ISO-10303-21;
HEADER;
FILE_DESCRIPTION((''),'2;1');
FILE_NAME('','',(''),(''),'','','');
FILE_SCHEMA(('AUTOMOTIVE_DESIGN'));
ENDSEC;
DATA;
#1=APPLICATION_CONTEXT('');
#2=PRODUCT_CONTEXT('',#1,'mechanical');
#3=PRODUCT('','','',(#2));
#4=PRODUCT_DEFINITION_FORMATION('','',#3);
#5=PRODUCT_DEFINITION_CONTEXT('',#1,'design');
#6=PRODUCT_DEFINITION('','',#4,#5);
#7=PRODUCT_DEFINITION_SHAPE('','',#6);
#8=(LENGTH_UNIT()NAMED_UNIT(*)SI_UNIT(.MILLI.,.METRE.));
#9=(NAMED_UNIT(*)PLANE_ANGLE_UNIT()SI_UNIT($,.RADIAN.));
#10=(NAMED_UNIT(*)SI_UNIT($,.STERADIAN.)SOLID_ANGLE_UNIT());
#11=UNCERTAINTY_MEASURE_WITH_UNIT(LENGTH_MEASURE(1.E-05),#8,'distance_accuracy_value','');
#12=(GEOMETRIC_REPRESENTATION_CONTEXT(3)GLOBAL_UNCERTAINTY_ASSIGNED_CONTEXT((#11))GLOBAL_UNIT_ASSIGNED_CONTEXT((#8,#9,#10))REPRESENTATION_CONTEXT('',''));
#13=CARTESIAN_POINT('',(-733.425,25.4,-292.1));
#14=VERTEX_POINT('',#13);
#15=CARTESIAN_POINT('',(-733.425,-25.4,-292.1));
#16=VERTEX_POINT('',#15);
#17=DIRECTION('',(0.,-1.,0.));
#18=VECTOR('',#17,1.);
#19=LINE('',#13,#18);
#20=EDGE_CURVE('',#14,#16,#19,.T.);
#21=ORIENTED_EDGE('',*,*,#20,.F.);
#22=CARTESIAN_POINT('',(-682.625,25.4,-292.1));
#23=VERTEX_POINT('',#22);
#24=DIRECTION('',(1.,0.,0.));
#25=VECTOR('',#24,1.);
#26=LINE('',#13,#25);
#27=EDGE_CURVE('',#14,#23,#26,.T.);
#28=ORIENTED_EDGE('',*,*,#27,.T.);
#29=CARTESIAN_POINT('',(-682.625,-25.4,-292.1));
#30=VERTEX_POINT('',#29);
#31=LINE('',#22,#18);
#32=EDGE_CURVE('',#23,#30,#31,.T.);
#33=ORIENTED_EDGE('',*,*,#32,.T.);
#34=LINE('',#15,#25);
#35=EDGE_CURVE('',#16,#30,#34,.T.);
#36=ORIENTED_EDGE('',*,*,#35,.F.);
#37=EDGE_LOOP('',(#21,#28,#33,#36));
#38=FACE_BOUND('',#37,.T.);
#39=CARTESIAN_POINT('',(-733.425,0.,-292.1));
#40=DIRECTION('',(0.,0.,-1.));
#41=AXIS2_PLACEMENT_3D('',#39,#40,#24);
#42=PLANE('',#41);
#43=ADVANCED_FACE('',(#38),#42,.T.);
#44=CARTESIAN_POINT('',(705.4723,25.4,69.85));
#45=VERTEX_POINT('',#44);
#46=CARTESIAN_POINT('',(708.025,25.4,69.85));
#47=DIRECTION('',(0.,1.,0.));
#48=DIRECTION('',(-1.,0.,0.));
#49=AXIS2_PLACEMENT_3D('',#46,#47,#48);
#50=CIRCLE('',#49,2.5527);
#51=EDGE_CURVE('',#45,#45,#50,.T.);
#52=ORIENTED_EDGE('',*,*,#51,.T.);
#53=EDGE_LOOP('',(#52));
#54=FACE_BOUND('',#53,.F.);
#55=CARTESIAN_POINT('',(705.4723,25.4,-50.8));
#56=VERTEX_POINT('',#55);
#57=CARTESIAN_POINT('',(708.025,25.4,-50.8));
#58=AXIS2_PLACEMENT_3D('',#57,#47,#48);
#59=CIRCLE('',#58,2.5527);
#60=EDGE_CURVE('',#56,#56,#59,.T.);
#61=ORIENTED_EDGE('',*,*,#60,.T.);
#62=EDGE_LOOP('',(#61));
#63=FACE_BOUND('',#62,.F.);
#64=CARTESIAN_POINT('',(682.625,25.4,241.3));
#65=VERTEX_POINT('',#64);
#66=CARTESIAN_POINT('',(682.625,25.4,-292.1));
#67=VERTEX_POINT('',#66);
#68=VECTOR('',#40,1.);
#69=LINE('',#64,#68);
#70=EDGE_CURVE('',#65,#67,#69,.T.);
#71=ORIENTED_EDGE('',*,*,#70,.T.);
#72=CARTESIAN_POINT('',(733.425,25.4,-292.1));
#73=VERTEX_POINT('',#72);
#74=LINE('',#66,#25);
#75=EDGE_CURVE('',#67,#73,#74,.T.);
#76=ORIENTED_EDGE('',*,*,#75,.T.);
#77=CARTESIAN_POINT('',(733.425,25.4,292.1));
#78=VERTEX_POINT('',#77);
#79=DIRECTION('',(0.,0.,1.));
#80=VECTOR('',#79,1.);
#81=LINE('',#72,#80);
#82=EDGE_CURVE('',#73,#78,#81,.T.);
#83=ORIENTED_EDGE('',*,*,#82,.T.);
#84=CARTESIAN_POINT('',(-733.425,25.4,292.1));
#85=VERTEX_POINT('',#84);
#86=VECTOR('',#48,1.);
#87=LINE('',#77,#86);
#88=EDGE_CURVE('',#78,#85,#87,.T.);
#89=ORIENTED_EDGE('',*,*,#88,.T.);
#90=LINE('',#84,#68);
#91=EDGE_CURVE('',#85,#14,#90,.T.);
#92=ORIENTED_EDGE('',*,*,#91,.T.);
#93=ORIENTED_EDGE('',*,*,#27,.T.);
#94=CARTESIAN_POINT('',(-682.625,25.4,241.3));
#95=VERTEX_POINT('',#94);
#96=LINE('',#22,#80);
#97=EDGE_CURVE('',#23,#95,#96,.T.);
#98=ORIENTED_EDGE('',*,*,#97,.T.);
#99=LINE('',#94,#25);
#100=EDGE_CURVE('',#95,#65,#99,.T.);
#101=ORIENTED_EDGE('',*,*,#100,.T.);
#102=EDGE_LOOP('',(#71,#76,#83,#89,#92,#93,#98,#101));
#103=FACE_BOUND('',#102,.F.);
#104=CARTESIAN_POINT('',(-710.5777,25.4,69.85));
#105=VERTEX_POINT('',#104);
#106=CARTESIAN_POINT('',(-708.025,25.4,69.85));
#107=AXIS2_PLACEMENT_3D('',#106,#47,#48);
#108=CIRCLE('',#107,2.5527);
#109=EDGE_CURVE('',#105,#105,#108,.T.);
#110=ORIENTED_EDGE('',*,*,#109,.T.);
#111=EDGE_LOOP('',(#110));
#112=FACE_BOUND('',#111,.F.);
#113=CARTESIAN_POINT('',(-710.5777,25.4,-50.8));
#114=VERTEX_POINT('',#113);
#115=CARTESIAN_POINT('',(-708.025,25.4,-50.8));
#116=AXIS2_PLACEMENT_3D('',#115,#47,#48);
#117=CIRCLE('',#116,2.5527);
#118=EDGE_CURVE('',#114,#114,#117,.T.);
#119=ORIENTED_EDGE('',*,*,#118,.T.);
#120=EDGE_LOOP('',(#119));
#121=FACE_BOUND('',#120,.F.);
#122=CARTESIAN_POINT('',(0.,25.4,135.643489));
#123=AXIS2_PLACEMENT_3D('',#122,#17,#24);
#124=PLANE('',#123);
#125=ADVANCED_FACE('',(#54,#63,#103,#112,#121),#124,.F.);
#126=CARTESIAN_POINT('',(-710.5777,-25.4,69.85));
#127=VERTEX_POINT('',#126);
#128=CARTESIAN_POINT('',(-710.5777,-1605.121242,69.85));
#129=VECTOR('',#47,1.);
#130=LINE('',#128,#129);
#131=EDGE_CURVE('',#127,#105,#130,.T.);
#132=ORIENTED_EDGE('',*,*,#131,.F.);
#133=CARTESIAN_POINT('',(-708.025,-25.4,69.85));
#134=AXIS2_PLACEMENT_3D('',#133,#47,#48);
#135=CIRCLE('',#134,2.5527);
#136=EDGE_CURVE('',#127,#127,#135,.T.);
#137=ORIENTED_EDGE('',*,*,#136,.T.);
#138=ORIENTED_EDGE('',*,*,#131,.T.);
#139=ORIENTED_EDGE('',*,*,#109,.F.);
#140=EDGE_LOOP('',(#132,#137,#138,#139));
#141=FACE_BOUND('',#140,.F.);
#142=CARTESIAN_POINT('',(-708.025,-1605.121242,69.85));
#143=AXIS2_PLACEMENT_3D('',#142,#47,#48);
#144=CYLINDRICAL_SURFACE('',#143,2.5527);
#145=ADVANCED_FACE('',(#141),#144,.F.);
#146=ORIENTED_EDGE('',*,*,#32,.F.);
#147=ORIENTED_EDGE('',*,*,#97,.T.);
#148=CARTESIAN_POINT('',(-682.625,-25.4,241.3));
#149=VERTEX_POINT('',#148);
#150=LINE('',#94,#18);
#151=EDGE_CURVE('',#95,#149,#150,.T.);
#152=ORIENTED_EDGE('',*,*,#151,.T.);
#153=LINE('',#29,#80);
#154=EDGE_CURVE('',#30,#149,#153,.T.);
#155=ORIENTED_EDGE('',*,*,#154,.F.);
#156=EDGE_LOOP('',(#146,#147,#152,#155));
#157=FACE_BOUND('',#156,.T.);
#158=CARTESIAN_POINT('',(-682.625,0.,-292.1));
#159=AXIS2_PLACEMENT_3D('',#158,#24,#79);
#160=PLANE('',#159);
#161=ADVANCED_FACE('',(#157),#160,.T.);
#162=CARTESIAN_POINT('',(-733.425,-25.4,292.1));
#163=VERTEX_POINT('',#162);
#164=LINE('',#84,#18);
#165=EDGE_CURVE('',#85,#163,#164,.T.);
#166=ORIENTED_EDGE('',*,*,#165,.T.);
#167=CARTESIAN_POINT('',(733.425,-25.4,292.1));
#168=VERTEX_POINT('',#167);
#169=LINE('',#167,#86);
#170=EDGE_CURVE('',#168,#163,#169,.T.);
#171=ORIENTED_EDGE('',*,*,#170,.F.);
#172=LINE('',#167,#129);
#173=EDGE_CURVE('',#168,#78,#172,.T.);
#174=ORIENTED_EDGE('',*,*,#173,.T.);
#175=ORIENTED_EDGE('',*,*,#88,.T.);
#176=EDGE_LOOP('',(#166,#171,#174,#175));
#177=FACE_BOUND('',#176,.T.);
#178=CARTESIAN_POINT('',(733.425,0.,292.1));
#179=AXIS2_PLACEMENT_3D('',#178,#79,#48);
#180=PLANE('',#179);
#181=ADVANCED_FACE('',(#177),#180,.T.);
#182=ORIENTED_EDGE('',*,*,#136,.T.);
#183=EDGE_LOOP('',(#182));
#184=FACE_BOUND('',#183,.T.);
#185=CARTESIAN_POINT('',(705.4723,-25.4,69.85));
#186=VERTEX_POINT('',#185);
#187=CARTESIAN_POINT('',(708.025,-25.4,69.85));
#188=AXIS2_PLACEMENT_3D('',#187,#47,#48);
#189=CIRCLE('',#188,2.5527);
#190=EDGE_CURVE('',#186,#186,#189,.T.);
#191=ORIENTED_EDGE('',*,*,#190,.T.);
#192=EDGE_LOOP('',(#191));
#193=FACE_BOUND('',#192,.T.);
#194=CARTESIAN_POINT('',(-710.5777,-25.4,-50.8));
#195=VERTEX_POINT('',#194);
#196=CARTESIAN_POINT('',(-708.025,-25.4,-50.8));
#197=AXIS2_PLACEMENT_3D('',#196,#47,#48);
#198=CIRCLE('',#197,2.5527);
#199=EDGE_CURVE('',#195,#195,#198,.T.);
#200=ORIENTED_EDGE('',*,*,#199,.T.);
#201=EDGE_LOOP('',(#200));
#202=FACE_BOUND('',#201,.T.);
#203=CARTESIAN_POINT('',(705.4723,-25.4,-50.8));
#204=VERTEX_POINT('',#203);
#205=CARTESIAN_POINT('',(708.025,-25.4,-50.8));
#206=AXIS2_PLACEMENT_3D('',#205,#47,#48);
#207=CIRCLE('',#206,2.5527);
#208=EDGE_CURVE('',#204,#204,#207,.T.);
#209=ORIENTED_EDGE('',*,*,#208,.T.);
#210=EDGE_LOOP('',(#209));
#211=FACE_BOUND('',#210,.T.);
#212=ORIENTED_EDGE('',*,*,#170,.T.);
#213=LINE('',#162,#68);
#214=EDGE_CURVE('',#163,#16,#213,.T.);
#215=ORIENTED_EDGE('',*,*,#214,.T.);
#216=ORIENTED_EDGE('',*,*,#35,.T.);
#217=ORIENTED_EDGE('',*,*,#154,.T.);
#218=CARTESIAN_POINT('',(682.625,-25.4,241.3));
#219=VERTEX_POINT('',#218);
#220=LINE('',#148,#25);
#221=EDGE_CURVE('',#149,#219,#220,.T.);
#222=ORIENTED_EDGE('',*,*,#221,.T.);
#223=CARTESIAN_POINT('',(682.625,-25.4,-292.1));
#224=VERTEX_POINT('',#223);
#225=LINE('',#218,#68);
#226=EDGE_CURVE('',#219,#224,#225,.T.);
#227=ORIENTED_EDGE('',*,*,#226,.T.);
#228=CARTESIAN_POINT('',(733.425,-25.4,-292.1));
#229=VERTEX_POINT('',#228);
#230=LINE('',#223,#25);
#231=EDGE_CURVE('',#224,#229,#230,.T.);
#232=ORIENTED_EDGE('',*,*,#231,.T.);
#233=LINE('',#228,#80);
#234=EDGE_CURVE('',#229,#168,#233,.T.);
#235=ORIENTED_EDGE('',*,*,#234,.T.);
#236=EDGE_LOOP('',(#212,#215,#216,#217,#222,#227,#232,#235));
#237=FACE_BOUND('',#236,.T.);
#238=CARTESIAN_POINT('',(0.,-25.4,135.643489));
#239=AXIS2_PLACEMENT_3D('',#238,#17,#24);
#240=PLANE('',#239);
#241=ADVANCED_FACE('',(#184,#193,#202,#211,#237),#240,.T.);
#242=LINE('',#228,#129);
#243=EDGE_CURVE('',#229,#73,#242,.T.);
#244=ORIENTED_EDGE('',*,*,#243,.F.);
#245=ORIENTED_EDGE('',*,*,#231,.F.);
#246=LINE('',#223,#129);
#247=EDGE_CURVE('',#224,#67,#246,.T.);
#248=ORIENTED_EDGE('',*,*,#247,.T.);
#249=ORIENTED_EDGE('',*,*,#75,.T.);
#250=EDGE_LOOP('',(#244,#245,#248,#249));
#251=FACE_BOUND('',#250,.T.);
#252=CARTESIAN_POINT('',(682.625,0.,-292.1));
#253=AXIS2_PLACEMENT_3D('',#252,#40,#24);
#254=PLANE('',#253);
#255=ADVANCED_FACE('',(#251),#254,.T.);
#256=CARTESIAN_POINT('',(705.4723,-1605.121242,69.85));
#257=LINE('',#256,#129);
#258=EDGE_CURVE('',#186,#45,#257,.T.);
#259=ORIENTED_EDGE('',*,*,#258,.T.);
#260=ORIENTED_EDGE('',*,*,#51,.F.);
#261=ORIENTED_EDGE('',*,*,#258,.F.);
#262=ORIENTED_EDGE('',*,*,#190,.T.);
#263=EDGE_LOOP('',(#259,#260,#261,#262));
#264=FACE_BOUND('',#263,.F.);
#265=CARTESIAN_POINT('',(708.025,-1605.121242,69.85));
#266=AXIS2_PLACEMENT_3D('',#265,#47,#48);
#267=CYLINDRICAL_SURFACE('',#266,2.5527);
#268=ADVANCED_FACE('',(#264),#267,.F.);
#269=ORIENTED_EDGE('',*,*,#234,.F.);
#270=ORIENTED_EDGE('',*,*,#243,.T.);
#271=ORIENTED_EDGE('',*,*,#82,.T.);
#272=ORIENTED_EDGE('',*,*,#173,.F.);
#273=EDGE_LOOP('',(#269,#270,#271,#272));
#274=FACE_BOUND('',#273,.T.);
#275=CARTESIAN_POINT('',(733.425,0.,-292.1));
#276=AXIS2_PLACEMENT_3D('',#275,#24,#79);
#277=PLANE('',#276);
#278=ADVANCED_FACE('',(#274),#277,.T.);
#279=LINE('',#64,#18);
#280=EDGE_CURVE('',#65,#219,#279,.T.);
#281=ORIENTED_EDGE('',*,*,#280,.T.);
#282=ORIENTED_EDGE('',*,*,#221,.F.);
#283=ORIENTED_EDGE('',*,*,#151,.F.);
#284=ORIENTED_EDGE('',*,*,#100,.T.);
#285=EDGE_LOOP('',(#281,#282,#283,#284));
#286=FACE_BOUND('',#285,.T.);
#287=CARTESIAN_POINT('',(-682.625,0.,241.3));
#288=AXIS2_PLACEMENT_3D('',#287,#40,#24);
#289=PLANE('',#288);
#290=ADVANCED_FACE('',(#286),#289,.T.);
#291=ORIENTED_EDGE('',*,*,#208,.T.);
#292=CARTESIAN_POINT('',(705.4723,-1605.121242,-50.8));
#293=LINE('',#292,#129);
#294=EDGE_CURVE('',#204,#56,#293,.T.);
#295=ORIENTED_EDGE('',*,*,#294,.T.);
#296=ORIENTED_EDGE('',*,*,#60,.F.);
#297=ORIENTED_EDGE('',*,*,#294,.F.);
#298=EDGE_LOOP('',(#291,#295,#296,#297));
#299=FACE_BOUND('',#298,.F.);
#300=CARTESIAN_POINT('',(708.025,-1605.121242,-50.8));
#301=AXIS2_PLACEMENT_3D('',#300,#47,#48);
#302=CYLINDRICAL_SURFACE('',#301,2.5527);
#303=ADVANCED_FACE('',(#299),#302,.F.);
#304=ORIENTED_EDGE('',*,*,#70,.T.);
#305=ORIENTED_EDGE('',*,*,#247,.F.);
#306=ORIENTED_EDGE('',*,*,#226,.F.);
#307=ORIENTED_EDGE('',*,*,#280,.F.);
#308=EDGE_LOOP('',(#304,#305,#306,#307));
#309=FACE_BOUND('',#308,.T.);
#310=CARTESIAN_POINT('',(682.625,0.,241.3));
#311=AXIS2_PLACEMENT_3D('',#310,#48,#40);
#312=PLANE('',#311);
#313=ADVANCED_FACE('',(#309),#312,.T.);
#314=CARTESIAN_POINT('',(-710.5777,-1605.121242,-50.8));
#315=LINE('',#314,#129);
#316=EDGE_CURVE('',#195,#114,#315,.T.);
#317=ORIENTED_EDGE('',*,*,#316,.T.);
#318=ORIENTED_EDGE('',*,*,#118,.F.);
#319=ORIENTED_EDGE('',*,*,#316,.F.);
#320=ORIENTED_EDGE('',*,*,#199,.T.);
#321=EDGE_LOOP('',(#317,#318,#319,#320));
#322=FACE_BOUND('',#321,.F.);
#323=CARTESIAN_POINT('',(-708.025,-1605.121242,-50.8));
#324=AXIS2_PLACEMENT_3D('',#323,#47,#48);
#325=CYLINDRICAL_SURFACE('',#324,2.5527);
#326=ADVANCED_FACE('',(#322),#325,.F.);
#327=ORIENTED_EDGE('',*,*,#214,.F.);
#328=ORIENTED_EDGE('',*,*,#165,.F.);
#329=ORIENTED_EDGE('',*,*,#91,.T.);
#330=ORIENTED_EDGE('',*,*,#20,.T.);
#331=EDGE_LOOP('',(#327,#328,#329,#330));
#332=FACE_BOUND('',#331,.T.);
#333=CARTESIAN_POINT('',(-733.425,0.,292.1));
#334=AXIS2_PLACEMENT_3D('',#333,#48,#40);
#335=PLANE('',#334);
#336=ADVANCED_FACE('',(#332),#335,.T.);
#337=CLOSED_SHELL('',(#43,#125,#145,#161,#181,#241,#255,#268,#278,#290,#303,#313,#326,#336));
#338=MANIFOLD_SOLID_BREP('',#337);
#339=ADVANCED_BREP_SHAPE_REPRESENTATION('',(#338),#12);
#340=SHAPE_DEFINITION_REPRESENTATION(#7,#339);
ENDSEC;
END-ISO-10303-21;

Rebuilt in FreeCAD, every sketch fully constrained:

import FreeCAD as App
import Part
import Sketcher

V = App.Vector
Q = App.Units.Quantity


def add_polygon(sketch, points):
    """Adds a closed chain of lines whose ends are joined by coincident constraints."""
    first, n = sketch.GeometryCount, len(points)
    for a, b in zip(points, points[1:] + points[:1]):
        sketch.addGeometry(Part.LineSegment(App.Vector(*a, 0), App.Vector(*b, 0)), False)
    for i in range(n):
        sketch.addConstraint(Sketcher.Constraint("Coincident", first + i, 2, first + (i + 1) % n, 1))

doc = App.newDocument("Part")
body = doc.addObject("PartDesign::Body", "Body")

# Sketch on XZ plane
sketch1 = body.newObject("Sketcher::SketchObject", "Sketch")
sketch1.AttachmentSupport = (doc.getObject("XZ_Plane"), [""])
sketch1.MapMode = "FlatFace"
add_polygon(sketch1, [(733.425, 292.1), (-733.425, 292.1), (-733.425, -292.1), (-682.625, -292.1), (-682.625, 241.3), (682.625, 241.3), (682.625, -292.1), (733.425, -292.1)])  # lines 0-7
sketch1.addConstraint(Sketcher.Constraint("Horizontal", 0))
sketch1.addConstraint(Sketcher.Constraint("Vertical", 1))
sketch1.addConstraint(Sketcher.Constraint("Horizontal", 2))
sketch1.addConstraint(Sketcher.Constraint("Vertical", 3))
sketch1.addConstraint(Sketcher.Constraint("Horizontal", 4))
sketch1.addConstraint(Sketcher.Constraint("Vertical", 5))
sketch1.addConstraint(Sketcher.Constraint("Horizontal", 6))
sketch1.addConstraint(Sketcher.Constraint("Vertical", 7))
sketch1.addConstraint(Sketcher.Constraint("Symmetric", 0, 2, 6, 2, -1, 1))
sketch1.addConstraint(Sketcher.Constraint("Symmetric", 2, 2, 5, 2, -2))
sketch1.addConstraint(Sketcher.Constraint("DistanceX", 2, 1, 2, 2, Q("2 in")))
sketch1.addConstraint(Sketcher.Constraint("DistanceY", 1, 2, 1, 1, Q("23 in")))
sketch1.addConstraint(Sketcher.Constraint("DistanceY", 3, 1, 3, 2, Q("21 in")))
sketch1.addConstraint(Sketcher.Constraint("DistanceX", 0, 2, 0, 1, Q("57.75 in")))
pad1 = body.newObject("PartDesign::Pad", "Pad")
pad1.Profile = sketch1
pad1.Type = "TwoLengths"
pad1.Length = Q("1 in")
pad1.Length2 = Q("1 in")

# Sketch on XZ plane
sketch2 = body.newObject("Sketcher::SketchObject", "Sketch001")
sketch2.AttachmentSupport = (doc.getObject("XZ_Plane"), [""])
sketch2.MapMode = "FlatFace"
sketch2.AttachmentOffset = App.Placement(V(0, 0, 1 * 25.4), App.Rotation())
sketch2.addGeometry(Part.Circle(V(-708.025, -50.8, 0), V(0, 0, 1), 2.5527), False)
sketch2.addGeometry(Part.Circle(V(708.025, -50.8, 0), V(0, 0, 1), 2.5527), False)
sketch2.addGeometry(Part.Circle(V(708.025, 69.85, 0), V(0, 0, 1), 2.5527), False)
sketch2.addGeometry(Part.Circle(V(-708.025, 69.85, 0), V(0, 0, 1), 2.5527), False)
sketch2.addConstraint(Sketcher.Constraint("Equal", 0, 1))
sketch2.addConstraint(Sketcher.Constraint("Equal", 1, 2))
sketch2.addConstraint(Sketcher.Constraint("Equal", 2, 3))
sketch2.addConstraint(Sketcher.Constraint("Symmetric", 0, 3, 1, 3, -2))
sketch2.addConstraint(Sketcher.Constraint("Symmetric", 2, 3, 3, 3, -2))
sketch2.addConstraint(Sketcher.Constraint("Vertical", 1, 3, 2, 3))
sketch2.addConstraint(Sketcher.Constraint("Diameter", 0, Q("0.201 in")))
sketch2.addConstraint(Sketcher.Constraint("DistanceY", 0, 3, -1, 1, Q("2 in")))
sketch2.addConstraint(Sketcher.Constraint("DistanceY", -1, 1, 2, 3, Q("2.75 in")))
sketch2.addConstraint(Sketcher.Constraint("DistanceX", 0, 3, 1, 3, Q("55.75 in")))
doc.recompute()
hole = body.newObject("PartDesign::Hole", "Hole")
hole.Profile = sketch2
hole.ThreadType = "None"
hole.Diameter = Q("0.201 in")
hole.DepthType = "ThroughAll"

doc.recompute()
